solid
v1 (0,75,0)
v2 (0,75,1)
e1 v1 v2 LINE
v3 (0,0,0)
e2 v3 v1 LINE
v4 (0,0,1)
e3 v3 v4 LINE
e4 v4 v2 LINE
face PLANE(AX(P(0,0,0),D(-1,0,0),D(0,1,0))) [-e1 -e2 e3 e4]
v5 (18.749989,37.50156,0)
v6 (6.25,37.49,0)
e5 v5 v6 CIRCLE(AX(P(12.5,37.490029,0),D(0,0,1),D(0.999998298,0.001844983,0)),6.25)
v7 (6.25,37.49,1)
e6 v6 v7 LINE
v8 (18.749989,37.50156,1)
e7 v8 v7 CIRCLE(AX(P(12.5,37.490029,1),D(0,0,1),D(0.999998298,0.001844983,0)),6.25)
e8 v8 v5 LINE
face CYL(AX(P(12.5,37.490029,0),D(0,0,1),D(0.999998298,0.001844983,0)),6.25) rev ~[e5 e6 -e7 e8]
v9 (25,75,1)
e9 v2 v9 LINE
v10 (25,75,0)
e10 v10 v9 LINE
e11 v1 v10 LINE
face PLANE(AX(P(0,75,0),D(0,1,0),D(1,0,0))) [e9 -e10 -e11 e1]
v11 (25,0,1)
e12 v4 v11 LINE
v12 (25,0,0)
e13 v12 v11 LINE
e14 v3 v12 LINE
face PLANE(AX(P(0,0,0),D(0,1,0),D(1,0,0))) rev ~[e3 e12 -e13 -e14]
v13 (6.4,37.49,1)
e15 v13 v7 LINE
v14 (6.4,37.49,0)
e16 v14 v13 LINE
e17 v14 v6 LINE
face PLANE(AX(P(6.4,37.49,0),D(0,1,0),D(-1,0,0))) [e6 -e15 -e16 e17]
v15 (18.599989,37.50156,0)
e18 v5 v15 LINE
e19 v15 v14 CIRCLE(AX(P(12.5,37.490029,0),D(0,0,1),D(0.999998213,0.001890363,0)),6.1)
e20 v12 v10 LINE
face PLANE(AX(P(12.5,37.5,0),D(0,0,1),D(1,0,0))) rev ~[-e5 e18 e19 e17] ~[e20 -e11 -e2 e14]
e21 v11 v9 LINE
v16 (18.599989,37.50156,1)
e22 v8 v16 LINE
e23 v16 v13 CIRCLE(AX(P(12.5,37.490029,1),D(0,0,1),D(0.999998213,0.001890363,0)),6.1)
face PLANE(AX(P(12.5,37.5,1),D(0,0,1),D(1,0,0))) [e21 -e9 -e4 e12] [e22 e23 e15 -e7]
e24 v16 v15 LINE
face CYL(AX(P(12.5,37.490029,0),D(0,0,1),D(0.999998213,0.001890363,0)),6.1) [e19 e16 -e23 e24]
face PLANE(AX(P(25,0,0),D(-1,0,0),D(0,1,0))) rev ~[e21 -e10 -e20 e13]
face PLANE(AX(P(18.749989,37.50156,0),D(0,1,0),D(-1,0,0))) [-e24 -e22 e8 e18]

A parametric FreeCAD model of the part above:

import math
import FreeCAD as App
import Part
import Sketcher
from FreeCAD import Vector


def add_polygon(sketch, points):
    """Adds a closed chain of lines whose ends are joined by coincident constraints."""
    first, n = sketch.GeometryCount, len(points)
    for a, b in zip(points, points[1:] + points[:1]):
        sketch.addGeometry(Part.LineSegment(App.Vector(*a, 0), App.Vector(*b, 0)), False)
    for i in range(n):
        sketch.addConstraint(Sketcher.Constraint("Coincident", first + i, 2, first + (i + 1) % n, 1))

doc = App.newDocument("Part")
body = doc.addObject("PartDesign::Body", "Body")

# Sketch on XY plane
sketch1 = body.newObject("Sketcher::SketchObject", "Sketch")
sketch1.AttachmentSupport = (doc.getObject("XY_Plane"), [""])
sketch1.MapMode = "FlatFace"
sketch1.addGeometry([
    Part.ArcOfCircle(Part.Circle(Vector(12.5, 37.490029, 0), Vector(0, 0, 1), 6.25), math.radians(0.10571), math.radians(180.000265)),
    Part.LineSegment(Vector(6.25, 37.49, 0), Vector(6.4, 37.49, 0)),
    Part.ArcOfCircle(Part.Circle(Vector(12.5, 37.490029, 0), Vector(0, 0, 1), 6.1), math.radians(0.10831), math.radians(180.00027)),
    Part.LineSegment(Vector(18.599989, 37.50156, 0), Vector(18.749989, 37.50156, 0)),
], False)
sketch1.addConstraint([
    Sketcher.Constraint("Coincident", 0, 2, 1, 1),
    Sketcher.Constraint("Coincident", 1, 2, 2, 2),
    Sketcher.Constraint("Coincident", 2, 1, 3, 1),
    Sketcher.Constraint("Coincident", 3, 2, 0, 1),
    Sketcher.Constraint("Horizontal", 1),
    Sketcher.Constraint("Horizontal", 3),
    Sketcher.Constraint("Coincident", 2, 3, 0, 3),
    Sketcher.Constraint("Radius", 2, 6.1),
    Sketcher.Constraint("Radius", 0, 6.25),
    Sketcher.Constraint("DistanceX", -1, 1, 0, 3, 12.5),
    Sketcher.Constraint("DistanceY", -1, 1, 0, 2, 37.49),
    Sketcher.Constraint("DistanceY", -1, 1, 0, 3, 37.490029),
    Sketcher.Constraint("DistanceY", -1, 1, 2, 1, 37.50156),
])
pad1 = body.newObject("PartDesign::Pad", "Pad")
pad1.Profile = sketch1
pad1.Type = "TwoLengths"
pad1.Length = 2
pad1.Length2 = 2
body2 = doc.addObject("PartDesign::Body", "Body001")

# Sketch on XY plane
sketch2 = body2.newObject("Sketcher::SketchObject", "Sketch001")
sketch2.AttachmentSupport = (doc.getObject("XY_Plane001"), [""])
sketch2.MapMode = "FlatFace"
add_polygon(sketch2, [(0, 75), (0, 0), (25, 0), (25, 75)])  # lines 0-3
sketch2.addConstraint([
    Sketcher.Constraint("Vertical", 0),
    Sketcher.Constraint("Horizontal", 1),
    Sketcher.Constraint("Vertical", 2),
    Sketcher.Constraint("Horizontal", 3),
    Sketcher.Constraint("Coincident", 0, 2, -1, 1),
    Sketcher.Constraint("DistanceX", 1, 1, 1, 2, 25.0),
    Sketcher.Constraint("DistanceY", 0, 2, 0, 1, 75.0),
])
pad2 = body2.newObject("PartDesign::Pad", "Pad001")
pad2.Profile = sketch2
pad2.Length = 1
doc.recompute()

boolean = body2.newObject("PartDesign::Boolean", "Boolean")
boolean.Type = "Cut"
boolean.addObjects([body])

doc.recompute()
